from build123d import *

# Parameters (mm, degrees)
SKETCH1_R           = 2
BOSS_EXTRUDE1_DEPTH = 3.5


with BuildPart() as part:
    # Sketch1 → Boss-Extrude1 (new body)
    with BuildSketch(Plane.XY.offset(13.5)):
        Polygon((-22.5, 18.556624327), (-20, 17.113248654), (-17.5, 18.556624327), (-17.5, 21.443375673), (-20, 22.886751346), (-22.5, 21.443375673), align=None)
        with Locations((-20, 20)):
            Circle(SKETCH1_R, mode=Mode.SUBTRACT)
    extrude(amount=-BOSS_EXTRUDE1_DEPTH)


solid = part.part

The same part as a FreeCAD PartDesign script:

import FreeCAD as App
import Part
import Sketcher

V = App.Vector
Q = App.Units.Quantity

doc = App.newDocument("Part")
body = doc.addObject("PartDesign::Body", "Body")

# Sketch on XY plane
sketch1 = body.newObject("Sketcher::SketchObject", "Sketch")
sketch1.AttachmentSupport = (doc.getObject("XY_Plane"), [""])
sketch1.MapMode = "FlatFace"
sketch1.AttachmentOffset = App.Placement(V(0, 0, 13.5), App.Rotation())
sketch1.addGeometry(Part.LineSegment(V(-22.5, 18.6, 0), V(-20, 17.1, 0)), False)
sketch1.addGeometry(Part.LineSegment(V(-20, 17.1, 0), V(-17.5, 18.6, 0)), False)
sketch1.addGeometry(Part.LineSegment(V(-17.5, 18.6, 0), V(-17.5, 21.4, 0)), False)
sketch1.addGeometry(Part.LineSegment(V(-17.5, 21.4, 0), V(-20, 22.9, 0)), False)
sketch1.addGeometry(Part.LineSegment(V(-20, 22.9, 0), V(-22.5, 21.4, 0)), False)
sketch1.addGeometry(Part.LineSegment(V(-22.5, 21.4, 0), V(-22.5, 18.6, 0)), False)
sketch1.addGeometry(Part.Circle(V(-20, 20, 0), V(0, 0, 1), 2), False)
sketch1.addConstraint(Sketcher.Constraint("Coincident", 0, 2, 1, 1))
sketch1.addConstraint(Sketcher.Constraint("Coincident", 1, 2, 2, 1))
sketch1.addConstraint(Sketcher.Constraint("Coincident", 2, 2, 3, 1))
sketch1.addConstraint(Sketcher.Constraint("Coincident", 3, 2, 4, 1))
sketch1.addConstraint(Sketcher.Constraint("Coincident", 4, 2, 5, 1))
sketch1.addConstraint(Sketcher.Constraint("Coincident", 5, 2, 0, 1))
sketch1.addConstraint(Sketcher.Constraint("Vertical", 2))
sketch1.addConstraint(Sketcher.Constraint("Vertical", 5))
sketch1.addConstraint(Sketcher.Constraint("Parallel", 0, 3))
sketch1.addConstraint(Sketcher.Constraint("Parallel", 1, 4))
sketch1.addConstraint(Sketcher.Constraint("Horizontal", 2, 2, 4, 2))
sketch1.addConstraint(Sketcher.Constraint("Horizontal", 1, 2, 5, 2))
sketch1.addConstraint(Sketcher.Constraint("Vertical", 6, 3, 0, 2))
sketch1.addConstraint(Sketcher.Constraint("Vertical", 0, 2, 3, 2))
sketch1.addConstraint(Sketcher.Constraint("Diameter", 6, 4.0))
sketch1.addConstraint(Sketcher.Constraint("Angle", 0, Q("-30 deg")))
sketch1.addConstraint(Sketcher.Constraint("DistanceX", 6, 3, -1, 1, 20.0))
sketch1.addConstraint(Sketcher.Constraint("DistanceY", -1, 1, 6, 3, 20.0))
sketch1.addConstraint(Sketcher.Constraint("DistanceX", 4, 2, 2, 2, 5.0))
sketch1.addConstraint(Sketcher.Constraint("DistanceY", 2, 1, 2, 2, 2.886751))
sketch1.addConstraint(Sketcher.Constraint("DistanceY", -1, 1, 0, 2, 17.113249))
pad1 = body.newObject("PartDesign::Pad", "Pad")
pad1.Profile = sketch1
pad1.Length = 3.5
pad1.Reversed = True

doc.recompute()
